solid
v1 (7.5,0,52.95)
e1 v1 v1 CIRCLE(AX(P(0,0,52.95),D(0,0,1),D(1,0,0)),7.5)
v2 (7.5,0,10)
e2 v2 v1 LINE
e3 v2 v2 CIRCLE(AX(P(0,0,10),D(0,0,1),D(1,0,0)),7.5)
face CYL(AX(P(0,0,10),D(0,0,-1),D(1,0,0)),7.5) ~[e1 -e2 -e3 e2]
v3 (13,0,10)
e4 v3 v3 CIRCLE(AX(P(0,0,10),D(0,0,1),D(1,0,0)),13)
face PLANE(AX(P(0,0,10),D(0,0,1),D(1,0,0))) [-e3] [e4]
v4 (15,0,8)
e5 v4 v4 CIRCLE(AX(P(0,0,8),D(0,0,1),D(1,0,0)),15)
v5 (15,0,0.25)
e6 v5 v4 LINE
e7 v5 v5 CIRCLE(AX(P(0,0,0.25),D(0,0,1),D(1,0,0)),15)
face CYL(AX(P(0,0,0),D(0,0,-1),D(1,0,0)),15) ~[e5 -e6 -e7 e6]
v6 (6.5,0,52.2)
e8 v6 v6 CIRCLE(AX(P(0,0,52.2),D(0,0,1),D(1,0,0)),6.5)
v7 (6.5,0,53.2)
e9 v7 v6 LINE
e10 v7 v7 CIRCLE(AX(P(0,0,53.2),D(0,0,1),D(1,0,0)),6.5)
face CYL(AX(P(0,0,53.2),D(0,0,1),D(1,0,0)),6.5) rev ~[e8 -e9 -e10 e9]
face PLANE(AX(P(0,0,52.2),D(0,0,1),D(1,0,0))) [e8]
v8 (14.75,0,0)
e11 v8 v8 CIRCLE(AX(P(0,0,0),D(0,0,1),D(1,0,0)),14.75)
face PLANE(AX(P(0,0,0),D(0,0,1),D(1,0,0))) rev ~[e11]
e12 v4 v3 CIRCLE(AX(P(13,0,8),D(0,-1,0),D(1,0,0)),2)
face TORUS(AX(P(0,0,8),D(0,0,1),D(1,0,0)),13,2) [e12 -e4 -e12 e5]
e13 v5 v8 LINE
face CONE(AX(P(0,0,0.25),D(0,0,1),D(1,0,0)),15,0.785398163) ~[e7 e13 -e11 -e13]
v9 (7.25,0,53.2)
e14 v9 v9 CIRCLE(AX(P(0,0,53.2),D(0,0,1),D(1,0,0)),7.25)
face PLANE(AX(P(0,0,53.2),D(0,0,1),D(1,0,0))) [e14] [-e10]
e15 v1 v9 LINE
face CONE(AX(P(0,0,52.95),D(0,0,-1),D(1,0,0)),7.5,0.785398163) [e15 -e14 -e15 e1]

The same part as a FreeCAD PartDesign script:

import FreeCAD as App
import Part
import Sketcher
from FreeCAD import Vector
Q = App.Units.Quantity


def edges_at(feature, points):
    """Names of the edges that pass closest to the given points."""
    edges = feature.Shape.Edges
    near = lambda p: min(range(len(edges)), key=lambda i: edges[i].distToShape(Part.Vertex(*p))[0])
    return sorted({f"Edge{near(p) + 1}" for p in points})

doc = App.newDocument("Part")
params = doc.addObject("Spreadsheet::Sheet", "Params")
for row, (alias, value) in enumerate([
    ("sketch1_diameter", "30 mm"),
    ("pad1_length", "10 mm"),
    ("sketch2_diameter", "15 mm"),
    ("pad2_length", "43.2 mm"),
    ("sketch3_diameter", "13 mm"),
    ("pocket1_length", "1 mm"),
    ("fillet_radius", "2 mm"),
    ("chamfer_size", "0.25 mm"),
    ("chamfer2_size", "0.25 mm"),
], start=1):
    params.set(f"A{row}", alias)
    params.set(f"B{row}", "=" + value)
    params.setAlias(f"B{row}", alias)

body = doc.addObject("PartDesign::Body", "Body")

# Sketch on XY plane
sketch1 = body.newObject("Sketcher::SketchObject", "Sketch")
sketch1.AttachmentSupport = (doc.getObject("XY_Plane"), [""])
sketch1.MapMode = "FlatFace"
sketch1.addGeometry(Part.Circle(Vector(0, 0, 0), Vector(0, 0, 1), 15), False)
sketch1.addConstraint(Sketcher.Constraint("Coincident", 0, 3, -1, 1))
sketch1.addConstraint(Sketcher.Constraint("Diameter", 0, Q("30 mm")))
sketch1.setExpression("Constraints[1]", "Params.sketch1_diameter")
pad1 = body.newObject("PartDesign::Pad", "Pad")
pad1.Profile = sketch1
pad1.setExpression("Length", "Params.pad1_length")

# Sketch on XY plane
sketch2 = body.newObject("Sketcher::SketchObject", "Sketch001")
sketch2.AttachmentSupport = (doc.getObject("XY_Plane"), [""])
sketch2.MapMode = "FlatFace"
sketch2.AttachmentOffset = App.Placement(Vector(0, 0, 10), App.Rotation())
sketch2.addGeometry(Part.Circle(Vector(0, 0, 0), Vector(0, 0, 1), 8), False)
sketch2.addConstraint(Sketcher.Constraint("Coincident", 0, 3, -1, 1))
sketch2.addConstraint(Sketcher.Constraint("Diameter", 0, Q("15 mm")))
sketch2.setExpression("Constraints[1]", "Params.sketch2_diameter")
pad2 = body.newObject("PartDesign::Pad", "Pad001")
pad2.Profile = sketch2
pad2.setExpression("Length", "Params.pad2_length")

# Sketch on XY plane
sketch3 = body.newObject("Sketcher::SketchObject", "Sketch002")
sketch3.AttachmentSupport = (doc.getObject("XY_Plane"), [""])
sketch3.MapMode = "FlatFace"
sketch3.AttachmentOffset = App.Placement(Vector(0, 0, 53.2), App.Rotation())
sketch3.addGeometry(Part.Circle(Vector(0, 0, 0), Vector(0, 0, 1), 6), False)
sketch3.addConstraint(Sketcher.Constraint("Coincident", 0, 3, -1, 1))
sketch3.addConstraint(Sketcher.Constraint("Diameter", 0, Q("13 mm")))
sketch3.setExpression("Constraints[1]", "Params.sketch3_diameter")
pocket1 = body.newObject("PartDesign::Pocket", "Pocket")
pocket1.Profile = sketch3
pocket1.setExpression("Length", "Params.pocket1_length")
doc.recompute()

fillet = body.newObject("PartDesign::Fillet", "Fillet")
fillet.Base = (pocket1, edges_at(pocket1, [(-15, 0, 10)]))
fillet.setExpression("Radius", "Params.fillet_radius")
doc.recompute()

chamfer = body.newObject("PartDesign::Chamfer", "Chamfer")
chamfer.Base = (fillet, edges_at(fillet, [(-7.5, 0, 53.2)]))
chamfer.setExpression("Size", "Params.chamfer_size")
doc.recompute()

chamfer2 = body.newObject("PartDesign::Chamfer", "Chamfer001")
chamfer2.Base = (chamfer, edges_at(chamfer, [(-15, 0, 0)]))
chamfer2.setExpression("Size", "Params.chamfer2_size")

doc.recompute()
